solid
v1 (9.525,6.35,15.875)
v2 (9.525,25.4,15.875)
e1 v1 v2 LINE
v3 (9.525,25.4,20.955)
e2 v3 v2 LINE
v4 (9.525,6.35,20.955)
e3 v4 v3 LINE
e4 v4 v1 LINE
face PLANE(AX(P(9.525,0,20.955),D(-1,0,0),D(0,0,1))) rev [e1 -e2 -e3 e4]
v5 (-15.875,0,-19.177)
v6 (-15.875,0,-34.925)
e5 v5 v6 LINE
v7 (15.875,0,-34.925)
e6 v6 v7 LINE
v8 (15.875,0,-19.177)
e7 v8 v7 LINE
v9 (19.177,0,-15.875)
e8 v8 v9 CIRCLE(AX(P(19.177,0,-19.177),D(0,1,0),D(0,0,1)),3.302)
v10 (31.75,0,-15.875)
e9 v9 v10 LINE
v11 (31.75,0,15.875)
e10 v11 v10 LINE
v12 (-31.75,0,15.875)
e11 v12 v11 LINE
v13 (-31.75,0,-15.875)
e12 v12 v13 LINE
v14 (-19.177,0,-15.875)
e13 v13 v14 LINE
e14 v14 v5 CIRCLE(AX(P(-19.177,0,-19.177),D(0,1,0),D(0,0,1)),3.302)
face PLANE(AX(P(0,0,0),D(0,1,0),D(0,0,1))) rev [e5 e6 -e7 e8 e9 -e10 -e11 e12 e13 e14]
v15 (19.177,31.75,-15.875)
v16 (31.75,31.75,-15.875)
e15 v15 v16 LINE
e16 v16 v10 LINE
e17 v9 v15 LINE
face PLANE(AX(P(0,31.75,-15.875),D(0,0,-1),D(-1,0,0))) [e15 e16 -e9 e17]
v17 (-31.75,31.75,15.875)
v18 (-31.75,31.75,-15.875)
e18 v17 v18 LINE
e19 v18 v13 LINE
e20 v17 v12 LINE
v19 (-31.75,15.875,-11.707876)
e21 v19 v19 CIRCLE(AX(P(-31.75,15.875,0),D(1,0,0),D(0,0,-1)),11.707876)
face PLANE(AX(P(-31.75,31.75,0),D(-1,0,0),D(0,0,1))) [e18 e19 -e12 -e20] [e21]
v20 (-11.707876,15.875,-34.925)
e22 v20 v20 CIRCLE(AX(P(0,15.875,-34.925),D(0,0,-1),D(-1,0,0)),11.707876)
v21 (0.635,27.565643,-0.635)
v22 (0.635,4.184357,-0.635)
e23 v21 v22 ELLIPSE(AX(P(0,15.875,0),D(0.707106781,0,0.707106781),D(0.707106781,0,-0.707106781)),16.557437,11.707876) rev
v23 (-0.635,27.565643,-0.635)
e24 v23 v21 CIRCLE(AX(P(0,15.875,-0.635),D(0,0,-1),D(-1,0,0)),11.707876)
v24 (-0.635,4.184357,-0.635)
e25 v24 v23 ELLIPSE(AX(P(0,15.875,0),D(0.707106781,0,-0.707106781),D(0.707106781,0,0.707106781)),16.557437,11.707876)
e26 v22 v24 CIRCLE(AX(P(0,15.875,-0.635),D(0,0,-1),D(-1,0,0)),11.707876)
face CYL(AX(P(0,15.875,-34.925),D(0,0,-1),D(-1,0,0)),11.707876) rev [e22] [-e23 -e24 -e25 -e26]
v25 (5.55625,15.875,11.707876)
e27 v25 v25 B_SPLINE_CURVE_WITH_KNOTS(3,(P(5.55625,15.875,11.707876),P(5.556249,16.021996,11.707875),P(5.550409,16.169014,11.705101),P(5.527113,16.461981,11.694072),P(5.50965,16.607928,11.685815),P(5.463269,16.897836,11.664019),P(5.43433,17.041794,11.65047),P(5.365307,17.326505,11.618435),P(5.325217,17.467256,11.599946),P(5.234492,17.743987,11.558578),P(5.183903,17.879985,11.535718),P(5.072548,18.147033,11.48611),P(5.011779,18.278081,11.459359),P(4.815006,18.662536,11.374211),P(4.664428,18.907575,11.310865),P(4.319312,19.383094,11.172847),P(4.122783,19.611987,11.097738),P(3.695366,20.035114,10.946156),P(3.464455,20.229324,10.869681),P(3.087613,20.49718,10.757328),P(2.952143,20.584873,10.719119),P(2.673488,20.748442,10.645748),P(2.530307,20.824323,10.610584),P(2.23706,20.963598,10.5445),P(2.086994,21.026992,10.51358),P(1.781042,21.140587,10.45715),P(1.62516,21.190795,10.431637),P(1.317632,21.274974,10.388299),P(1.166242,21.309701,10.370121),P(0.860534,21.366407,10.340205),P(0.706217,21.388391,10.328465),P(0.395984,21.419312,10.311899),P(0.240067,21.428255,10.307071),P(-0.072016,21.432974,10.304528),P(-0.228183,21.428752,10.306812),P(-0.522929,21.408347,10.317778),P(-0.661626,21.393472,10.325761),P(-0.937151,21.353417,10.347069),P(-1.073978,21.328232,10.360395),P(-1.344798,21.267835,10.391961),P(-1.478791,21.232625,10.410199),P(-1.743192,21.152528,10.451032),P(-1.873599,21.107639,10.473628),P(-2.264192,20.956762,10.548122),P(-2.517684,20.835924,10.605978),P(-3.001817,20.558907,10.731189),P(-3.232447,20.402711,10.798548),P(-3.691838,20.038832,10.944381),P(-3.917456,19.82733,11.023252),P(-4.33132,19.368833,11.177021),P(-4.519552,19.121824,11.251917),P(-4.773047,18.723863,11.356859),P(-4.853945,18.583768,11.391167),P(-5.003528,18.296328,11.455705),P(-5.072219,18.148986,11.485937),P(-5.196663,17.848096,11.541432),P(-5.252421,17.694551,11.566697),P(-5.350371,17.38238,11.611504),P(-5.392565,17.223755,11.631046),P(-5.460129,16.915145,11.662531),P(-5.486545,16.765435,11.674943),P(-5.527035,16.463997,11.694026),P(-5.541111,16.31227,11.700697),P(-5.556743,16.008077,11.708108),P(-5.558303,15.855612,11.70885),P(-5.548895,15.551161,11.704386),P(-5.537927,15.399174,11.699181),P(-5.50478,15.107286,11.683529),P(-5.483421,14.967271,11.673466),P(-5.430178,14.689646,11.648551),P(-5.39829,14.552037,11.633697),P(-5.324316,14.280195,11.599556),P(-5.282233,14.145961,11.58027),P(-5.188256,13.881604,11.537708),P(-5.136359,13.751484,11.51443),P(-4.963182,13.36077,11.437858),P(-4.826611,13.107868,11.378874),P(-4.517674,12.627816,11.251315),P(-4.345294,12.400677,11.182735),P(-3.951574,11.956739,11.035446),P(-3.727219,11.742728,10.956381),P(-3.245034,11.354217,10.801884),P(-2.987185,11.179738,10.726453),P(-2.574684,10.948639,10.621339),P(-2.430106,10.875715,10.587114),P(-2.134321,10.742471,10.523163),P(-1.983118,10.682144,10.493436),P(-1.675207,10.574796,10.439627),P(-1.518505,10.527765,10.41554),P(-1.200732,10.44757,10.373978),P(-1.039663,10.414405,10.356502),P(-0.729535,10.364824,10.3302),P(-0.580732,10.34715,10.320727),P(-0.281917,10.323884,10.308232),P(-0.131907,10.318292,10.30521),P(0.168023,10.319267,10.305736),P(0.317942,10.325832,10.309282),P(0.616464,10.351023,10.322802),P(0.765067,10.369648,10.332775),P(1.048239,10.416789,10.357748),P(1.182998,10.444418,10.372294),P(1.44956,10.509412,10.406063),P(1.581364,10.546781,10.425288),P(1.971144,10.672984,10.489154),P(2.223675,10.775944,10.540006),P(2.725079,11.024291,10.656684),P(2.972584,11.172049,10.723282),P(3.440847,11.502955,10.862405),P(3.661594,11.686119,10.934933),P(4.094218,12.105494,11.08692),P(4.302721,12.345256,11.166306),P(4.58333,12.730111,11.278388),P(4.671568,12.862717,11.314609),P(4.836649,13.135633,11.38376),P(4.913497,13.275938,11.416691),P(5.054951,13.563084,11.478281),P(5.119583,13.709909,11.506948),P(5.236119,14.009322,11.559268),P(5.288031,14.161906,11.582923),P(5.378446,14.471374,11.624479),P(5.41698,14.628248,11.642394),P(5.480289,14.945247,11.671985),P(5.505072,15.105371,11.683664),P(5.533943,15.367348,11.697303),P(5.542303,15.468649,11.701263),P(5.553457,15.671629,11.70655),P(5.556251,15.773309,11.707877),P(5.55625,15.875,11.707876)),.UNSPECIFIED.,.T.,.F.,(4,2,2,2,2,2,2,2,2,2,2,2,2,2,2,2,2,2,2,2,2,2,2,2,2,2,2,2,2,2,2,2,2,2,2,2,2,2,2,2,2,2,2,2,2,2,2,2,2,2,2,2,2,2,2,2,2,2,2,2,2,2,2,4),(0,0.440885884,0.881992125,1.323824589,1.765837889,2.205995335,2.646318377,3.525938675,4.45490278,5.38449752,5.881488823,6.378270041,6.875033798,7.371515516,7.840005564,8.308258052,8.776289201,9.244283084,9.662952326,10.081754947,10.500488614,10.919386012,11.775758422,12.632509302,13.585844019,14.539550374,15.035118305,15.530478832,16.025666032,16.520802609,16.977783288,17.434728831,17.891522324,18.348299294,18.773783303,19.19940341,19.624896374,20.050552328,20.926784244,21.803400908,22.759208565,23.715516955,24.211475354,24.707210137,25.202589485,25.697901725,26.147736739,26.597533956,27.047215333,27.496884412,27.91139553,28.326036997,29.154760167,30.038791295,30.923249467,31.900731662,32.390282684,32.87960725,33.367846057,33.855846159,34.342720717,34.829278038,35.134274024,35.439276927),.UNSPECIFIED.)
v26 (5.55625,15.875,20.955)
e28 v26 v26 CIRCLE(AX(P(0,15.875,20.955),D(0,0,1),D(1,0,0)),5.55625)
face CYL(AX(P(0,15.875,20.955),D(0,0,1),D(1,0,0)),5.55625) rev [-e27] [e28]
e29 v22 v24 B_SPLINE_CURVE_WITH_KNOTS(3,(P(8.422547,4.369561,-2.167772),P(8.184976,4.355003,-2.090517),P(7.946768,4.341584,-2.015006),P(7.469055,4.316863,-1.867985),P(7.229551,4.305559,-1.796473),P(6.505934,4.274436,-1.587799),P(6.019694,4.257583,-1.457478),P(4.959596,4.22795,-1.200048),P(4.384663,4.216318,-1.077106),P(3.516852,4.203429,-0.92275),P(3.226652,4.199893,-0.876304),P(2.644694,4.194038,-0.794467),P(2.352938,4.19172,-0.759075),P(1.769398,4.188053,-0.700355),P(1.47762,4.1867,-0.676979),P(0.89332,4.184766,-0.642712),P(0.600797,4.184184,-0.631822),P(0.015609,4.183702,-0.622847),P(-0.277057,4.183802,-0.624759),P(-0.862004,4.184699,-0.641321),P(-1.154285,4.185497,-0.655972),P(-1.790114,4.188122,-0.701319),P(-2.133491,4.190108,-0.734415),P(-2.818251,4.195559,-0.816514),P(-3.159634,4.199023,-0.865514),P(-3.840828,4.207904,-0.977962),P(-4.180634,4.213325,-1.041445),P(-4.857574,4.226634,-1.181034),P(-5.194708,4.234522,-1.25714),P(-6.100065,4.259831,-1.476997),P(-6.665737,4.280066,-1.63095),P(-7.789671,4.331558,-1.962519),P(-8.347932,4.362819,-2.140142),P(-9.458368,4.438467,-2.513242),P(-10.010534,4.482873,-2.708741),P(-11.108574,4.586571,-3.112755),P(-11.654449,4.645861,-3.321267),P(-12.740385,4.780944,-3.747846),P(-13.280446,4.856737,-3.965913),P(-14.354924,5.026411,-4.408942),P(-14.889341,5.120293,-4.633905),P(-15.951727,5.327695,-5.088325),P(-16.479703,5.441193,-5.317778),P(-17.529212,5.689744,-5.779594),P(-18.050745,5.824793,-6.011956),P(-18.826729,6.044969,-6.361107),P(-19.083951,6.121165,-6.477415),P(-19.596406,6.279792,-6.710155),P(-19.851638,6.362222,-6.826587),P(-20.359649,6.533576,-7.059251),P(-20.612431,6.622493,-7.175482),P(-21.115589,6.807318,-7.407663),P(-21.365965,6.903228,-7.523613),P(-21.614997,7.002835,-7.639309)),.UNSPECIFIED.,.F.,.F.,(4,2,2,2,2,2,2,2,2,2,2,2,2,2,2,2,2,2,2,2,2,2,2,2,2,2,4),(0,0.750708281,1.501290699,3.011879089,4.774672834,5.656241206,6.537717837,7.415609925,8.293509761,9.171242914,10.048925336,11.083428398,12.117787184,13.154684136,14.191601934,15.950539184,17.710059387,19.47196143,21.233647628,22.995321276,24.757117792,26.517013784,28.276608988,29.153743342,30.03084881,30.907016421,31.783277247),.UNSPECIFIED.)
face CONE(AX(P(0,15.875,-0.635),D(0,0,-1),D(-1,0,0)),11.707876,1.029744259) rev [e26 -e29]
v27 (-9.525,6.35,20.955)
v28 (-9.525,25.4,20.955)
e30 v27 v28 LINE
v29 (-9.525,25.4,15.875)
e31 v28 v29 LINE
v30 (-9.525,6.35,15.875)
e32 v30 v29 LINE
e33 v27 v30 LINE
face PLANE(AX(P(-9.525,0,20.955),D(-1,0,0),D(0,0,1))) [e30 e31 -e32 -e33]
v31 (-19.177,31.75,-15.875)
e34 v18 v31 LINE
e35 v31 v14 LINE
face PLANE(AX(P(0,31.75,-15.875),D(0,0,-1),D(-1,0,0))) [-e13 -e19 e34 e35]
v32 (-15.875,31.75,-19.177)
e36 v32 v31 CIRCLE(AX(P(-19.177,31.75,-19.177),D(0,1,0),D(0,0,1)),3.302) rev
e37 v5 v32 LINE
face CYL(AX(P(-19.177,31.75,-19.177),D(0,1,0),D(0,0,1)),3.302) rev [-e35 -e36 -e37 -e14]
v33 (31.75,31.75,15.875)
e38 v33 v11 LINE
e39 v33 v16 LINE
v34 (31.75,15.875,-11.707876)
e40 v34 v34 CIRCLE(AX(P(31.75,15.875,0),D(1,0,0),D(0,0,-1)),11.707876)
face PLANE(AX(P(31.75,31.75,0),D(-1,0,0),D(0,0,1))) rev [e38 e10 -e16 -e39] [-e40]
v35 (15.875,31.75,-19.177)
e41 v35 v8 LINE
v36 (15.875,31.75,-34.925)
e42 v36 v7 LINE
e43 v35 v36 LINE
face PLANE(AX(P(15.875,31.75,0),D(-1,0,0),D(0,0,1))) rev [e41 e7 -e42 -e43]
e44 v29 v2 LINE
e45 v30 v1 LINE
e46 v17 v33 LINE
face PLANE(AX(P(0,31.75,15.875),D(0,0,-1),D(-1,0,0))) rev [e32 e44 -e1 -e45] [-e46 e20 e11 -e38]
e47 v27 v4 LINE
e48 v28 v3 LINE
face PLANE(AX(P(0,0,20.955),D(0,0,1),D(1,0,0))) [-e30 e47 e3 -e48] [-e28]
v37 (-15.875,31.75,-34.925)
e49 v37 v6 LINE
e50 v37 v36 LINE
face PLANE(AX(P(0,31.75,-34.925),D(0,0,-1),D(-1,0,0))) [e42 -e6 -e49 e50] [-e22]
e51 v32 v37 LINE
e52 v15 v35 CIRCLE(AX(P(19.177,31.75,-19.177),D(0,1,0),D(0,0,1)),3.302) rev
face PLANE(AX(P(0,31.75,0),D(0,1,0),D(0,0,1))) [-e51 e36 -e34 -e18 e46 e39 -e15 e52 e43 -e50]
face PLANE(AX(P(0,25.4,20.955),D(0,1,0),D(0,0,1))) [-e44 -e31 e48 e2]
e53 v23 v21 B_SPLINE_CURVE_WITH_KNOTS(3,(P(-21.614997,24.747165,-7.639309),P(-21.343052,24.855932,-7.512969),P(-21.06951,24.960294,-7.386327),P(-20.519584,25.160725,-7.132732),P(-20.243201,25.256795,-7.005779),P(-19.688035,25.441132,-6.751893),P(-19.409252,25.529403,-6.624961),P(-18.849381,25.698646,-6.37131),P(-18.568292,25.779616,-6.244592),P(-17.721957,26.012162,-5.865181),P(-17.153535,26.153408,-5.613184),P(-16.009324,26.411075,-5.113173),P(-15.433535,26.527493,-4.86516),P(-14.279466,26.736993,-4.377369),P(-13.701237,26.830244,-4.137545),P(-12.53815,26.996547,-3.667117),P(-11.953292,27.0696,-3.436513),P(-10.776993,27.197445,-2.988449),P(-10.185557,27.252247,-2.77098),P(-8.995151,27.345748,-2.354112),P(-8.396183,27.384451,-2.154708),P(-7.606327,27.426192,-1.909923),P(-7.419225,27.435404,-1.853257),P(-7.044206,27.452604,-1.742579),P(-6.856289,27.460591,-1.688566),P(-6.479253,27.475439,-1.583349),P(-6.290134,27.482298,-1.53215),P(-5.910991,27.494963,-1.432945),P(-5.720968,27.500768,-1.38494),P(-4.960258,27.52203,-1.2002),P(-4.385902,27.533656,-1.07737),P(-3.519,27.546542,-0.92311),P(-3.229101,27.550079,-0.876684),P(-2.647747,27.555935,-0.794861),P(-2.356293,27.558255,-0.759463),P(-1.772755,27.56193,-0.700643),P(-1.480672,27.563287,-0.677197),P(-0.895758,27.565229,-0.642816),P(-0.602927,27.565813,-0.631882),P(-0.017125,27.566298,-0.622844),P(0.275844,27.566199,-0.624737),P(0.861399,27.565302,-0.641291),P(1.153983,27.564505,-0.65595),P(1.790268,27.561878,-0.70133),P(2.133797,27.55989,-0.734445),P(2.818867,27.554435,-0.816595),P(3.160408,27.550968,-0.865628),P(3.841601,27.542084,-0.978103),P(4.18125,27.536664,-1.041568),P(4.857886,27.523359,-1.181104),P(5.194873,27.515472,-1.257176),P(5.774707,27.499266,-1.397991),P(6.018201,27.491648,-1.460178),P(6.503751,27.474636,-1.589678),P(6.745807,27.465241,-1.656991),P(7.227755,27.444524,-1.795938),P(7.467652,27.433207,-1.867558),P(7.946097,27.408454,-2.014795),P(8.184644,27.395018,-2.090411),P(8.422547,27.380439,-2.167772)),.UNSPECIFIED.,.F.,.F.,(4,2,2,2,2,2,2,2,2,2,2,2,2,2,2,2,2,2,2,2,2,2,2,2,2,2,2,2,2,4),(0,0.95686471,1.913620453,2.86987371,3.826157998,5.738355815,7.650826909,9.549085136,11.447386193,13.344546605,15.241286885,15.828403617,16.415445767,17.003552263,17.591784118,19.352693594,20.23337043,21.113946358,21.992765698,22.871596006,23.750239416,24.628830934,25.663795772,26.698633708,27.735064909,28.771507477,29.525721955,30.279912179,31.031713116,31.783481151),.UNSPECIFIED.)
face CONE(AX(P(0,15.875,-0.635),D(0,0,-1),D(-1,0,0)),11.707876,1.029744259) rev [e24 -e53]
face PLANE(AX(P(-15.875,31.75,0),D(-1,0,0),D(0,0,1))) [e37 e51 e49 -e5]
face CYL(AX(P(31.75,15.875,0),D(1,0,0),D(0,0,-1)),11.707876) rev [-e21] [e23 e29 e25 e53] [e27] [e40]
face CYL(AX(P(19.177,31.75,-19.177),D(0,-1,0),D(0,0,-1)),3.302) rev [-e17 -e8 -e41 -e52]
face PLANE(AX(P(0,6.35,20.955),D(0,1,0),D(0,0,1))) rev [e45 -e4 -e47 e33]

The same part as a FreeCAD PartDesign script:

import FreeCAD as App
import Part
import Sketcher
from FreeCAD import Vector
Q = App.Units.Quantity


def edges_at(feature, points):
    """Names of the edges that pass closest to the given points."""
    edges = feature.Shape.Edges
    near = lambda p: min(range(len(edges)), key=lambda i: edges[i].distToShape(Part.Vertex(*p))[0])
    return sorted({f"Edge{near(p) + 1}" for p in points})


def add_polygon(sketch, points):
    """Adds a closed chain of lines whose ends are joined by coincident constraints."""
    first, n = sketch.GeometryCount, len(points)
    for a, b in zip(points, points[1:] + points[:1]):
        sketch.addGeometry(Part.LineSegment(App.Vector(*a, 0), App.Vector(*b, 0)), False)
    for i in range(n):
        sketch.addConstraint(Sketcher.Constraint("Coincident", first + i, 2, first + (i + 1) % n, 1))

doc = App.newDocument("Part")
body = doc.addObject("PartDesign::Body", "Body")

# Sketch on XZ plane
sketch1 = body.newObject("Sketcher::SketchObject", "Sketch")
sketch1.AttachmentSupport = (doc.getObject("XZ_Plane"), [""])
sketch1.MapMode = "FlatFace"
add_polygon(sketch1, [(-32, -16), (-32, 16), (32, 16), (32, -16), (16, -16), (16, -35), (-16, -35), (-16, -16)])  # lines 0-7
sketch1.addConstraint(Sketcher.Constraint("Vertical", 0))
sketch1.addConstraint(Sketcher.Constraint("Horizontal", 1))
sketch1.addConstraint(Sketcher.Constraint("Vertical", 2))
sketch1.addConstraint(Sketcher.Constraint("Horizontal", 3))
sketch1.addConstraint(Sketcher.Constraint("Vertical", 4))
sketch1.addConstraint(Sketcher.Constraint("Horizontal", 5))
sketch1.addConstraint(Sketcher.Constraint("Vertical", 6))
sketch1.addConstraint(Sketcher.Constraint("Horizontal", 7))
sketch1.addConstraint(Sketcher.Constraint("Symmetric", 0, 2, 2, 2, -1, 1))
sketch1.addConstraint(Sketcher.Constraint("Symmetric", 3, 2, 6, 2, -2))
sketch1.addConstraint(Sketcher.Constraint("Equal", 5, 0))
sketch1.addConstraint(Sketcher.Constraint("DistanceX", 1, 1, 1, 2, Q("2.5 in")))
sketch1.addConstraint(Sketcher.Constraint("DistanceY", 4, 2, 1, 2, Q("2 in")))
sketch1.addConstraint(Sketcher.Constraint("DistanceX", 5, 2, 5, 1, Q("1.25 in")))
pad1 = body.newObject("PartDesign::Pad", "Pad")
pad1.Profile = sketch1
pad1.Length = Q("1.25 in")
pad1.Reversed = True

# Sketch on YZ plane
sketch2 = body.newObject("Sketcher::SketchObject", "Sketch001")
sketch2.AttachmentSupport = (doc.getObject("YZ_Plane"), [""])
sketch2.MapMode = "FlatFace"
sketch2.AttachmentOffset = App.Placement(Vector(0, 0, 1.25 * 25.4), App.Rotation())
sketch2.addGeometry(Part.Circle(Vector(16, 0, 0), Vector(0, 0, 1), 12), False)
sketch2.addConstraint(Sketcher.Constraint("PointOnObject", 0, 3, -1))
sketch2.addConstraint(Sketcher.Constraint("DistanceX", -1, 1, 0, 3, Q("0.625 in")))
sketch2.addConstraint(Sketcher.Constraint("Diameter", 0, Q("23.415752 mm")))
doc.recompute()
hole = body.newObject("PartDesign::Hole", "Hole")
hole.Profile = sketch2
hole.ThreadType = "None"
hole.Diameter = 23.415752
hole.DepthType = "ThroughAll"

# Sketch on XY plane
sketch3 = body.newObject("Sketcher::SketchObject", "Sketch002")
sketch3.AttachmentSupport = (doc.getObject("XY_Plane"), [""])
sketch3.MapMode = "FlatFace"
sketch3.AttachmentOffset = App.Placement(Vector(0, 0, -1.375 * 25.4), App.Rotation())
sketch3.addGeometry(Part.Circle(Vector(0, 16, 0), Vector(0, 0, 1), 12), False)
sketch3.addConstraint(Sketcher.Constraint("PointOnObject", 0, 3, -2))
sketch3.addConstraint(Sketcher.Constraint("DistanceY", -1, 1, 0, 3, Q("0.625 in")))
sketch3.addConstraint(Sketcher.Constraint("Diameter", 0, Q("23.415752 mm")))
doc.recompute()
hole2 = body.newObject("PartDesign::Hole", "Hole001")
hole2.Profile = sketch3
hole2.ThreadType = "None"
hole2.Diameter = 23.415752
hole2.DepthType = "Dimension"
hole2.Depth = Q("1.35 in")
hole2.DrillPoint = "Angled"
hole2.DrillPointAngle = 118
hole2.Reversed = True

# Sketch on XY plane
sketch4 = body.newObject("Sketcher::SketchObject", "Sketch003")
sketch4.AttachmentSupport = (doc.getObject("XY_Plane"), [""])
sketch4.MapMode = "FlatFace"
sketch4.AttachmentOffset = App.Placement(Vector(0, 0, 0.625 * 25.4), App.Rotation())
add_polygon(sketch4, [(-10, 6), (10, 6), (10, 25), (-10, 25)])  # lines 0-3
sketch4.addConstraint(Sketcher.Constraint("Horizontal", 0))
sketch4.addConstraint(Sketcher.Constraint("Vertical", 1))
sketch4.addConstraint(Sketcher.Constraint("Horizontal", 2))
sketch4.addConstraint(Sketcher.Constraint("Vertical", 3))
sketch4.addConstraint(Sketcher.Constraint("Equal", 2, 1))
sketch4.addConstraint(Sketcher.Constraint("DistanceY", -1, 1, 1, 2, Q("1 in")))
sketch4.addConstraint(Sketcher.Constraint("DistanceX", 0, 1, 0, 2, Q("0.75 in")))
sketch4.addConstraint(Sketcher.Constraint("DistanceX", -1, 1, 0, 2, Q("0.375 in")))
pad2 = body.newObject("PartDesign::Pad", "Pad001")
pad2.Profile = sketch4
pad2.Length = Q("0.2 in")

# Sketch on XY plane
sketch5 = body.newObject("Sketcher::SketchObject", "Sketch004")
sketch5.AttachmentSupport = (doc.getObject("XY_Plane"), [""])
sketch5.MapMode = "FlatFace"
sketch5.AttachmentOffset = App.Placement(Vector(0, 0, 0.825 * 25.4), App.Rotation())
sketch5.addGeometry(Part.Circle(Vector(0, 16, 0), Vector(0, 0, 1), 6), False)
sketch5.addConstraint(Sketcher.Constraint("PointOnObject", 0, 3, -2))
sketch5.addConstraint(Sketcher.Constraint("Diameter", 0, Q("0.4375 in")))
sketch5.addConstraint(Sketcher.Constraint("DistanceY", -1, 1, 0, 3, Q("0.625 in")))
doc.recompute()
hole3 = body.newObject("PartDesign::Hole", "Hole002")
hole3.Profile = sketch5
hole3.ThreadType = "None"
hole3.Diameter = Q("0.4375 in")
hole3.DepthType = "Dimension"
hole3.Depth = Q("1 in")
hole3.DrillPoint = "Angled"
hole3.DrillPointAngle = 118
doc.recompute()

fillet = body.newObject("PartDesign::Fillet", "Fillet")
fillet.Base = (hole3, edges_at(hole3, [(-15.875, 15.875, -15.875), (15.875, 15.875, -15.875)]))
fillet.Radius = Q("0.13 in")

doc.recompute()
